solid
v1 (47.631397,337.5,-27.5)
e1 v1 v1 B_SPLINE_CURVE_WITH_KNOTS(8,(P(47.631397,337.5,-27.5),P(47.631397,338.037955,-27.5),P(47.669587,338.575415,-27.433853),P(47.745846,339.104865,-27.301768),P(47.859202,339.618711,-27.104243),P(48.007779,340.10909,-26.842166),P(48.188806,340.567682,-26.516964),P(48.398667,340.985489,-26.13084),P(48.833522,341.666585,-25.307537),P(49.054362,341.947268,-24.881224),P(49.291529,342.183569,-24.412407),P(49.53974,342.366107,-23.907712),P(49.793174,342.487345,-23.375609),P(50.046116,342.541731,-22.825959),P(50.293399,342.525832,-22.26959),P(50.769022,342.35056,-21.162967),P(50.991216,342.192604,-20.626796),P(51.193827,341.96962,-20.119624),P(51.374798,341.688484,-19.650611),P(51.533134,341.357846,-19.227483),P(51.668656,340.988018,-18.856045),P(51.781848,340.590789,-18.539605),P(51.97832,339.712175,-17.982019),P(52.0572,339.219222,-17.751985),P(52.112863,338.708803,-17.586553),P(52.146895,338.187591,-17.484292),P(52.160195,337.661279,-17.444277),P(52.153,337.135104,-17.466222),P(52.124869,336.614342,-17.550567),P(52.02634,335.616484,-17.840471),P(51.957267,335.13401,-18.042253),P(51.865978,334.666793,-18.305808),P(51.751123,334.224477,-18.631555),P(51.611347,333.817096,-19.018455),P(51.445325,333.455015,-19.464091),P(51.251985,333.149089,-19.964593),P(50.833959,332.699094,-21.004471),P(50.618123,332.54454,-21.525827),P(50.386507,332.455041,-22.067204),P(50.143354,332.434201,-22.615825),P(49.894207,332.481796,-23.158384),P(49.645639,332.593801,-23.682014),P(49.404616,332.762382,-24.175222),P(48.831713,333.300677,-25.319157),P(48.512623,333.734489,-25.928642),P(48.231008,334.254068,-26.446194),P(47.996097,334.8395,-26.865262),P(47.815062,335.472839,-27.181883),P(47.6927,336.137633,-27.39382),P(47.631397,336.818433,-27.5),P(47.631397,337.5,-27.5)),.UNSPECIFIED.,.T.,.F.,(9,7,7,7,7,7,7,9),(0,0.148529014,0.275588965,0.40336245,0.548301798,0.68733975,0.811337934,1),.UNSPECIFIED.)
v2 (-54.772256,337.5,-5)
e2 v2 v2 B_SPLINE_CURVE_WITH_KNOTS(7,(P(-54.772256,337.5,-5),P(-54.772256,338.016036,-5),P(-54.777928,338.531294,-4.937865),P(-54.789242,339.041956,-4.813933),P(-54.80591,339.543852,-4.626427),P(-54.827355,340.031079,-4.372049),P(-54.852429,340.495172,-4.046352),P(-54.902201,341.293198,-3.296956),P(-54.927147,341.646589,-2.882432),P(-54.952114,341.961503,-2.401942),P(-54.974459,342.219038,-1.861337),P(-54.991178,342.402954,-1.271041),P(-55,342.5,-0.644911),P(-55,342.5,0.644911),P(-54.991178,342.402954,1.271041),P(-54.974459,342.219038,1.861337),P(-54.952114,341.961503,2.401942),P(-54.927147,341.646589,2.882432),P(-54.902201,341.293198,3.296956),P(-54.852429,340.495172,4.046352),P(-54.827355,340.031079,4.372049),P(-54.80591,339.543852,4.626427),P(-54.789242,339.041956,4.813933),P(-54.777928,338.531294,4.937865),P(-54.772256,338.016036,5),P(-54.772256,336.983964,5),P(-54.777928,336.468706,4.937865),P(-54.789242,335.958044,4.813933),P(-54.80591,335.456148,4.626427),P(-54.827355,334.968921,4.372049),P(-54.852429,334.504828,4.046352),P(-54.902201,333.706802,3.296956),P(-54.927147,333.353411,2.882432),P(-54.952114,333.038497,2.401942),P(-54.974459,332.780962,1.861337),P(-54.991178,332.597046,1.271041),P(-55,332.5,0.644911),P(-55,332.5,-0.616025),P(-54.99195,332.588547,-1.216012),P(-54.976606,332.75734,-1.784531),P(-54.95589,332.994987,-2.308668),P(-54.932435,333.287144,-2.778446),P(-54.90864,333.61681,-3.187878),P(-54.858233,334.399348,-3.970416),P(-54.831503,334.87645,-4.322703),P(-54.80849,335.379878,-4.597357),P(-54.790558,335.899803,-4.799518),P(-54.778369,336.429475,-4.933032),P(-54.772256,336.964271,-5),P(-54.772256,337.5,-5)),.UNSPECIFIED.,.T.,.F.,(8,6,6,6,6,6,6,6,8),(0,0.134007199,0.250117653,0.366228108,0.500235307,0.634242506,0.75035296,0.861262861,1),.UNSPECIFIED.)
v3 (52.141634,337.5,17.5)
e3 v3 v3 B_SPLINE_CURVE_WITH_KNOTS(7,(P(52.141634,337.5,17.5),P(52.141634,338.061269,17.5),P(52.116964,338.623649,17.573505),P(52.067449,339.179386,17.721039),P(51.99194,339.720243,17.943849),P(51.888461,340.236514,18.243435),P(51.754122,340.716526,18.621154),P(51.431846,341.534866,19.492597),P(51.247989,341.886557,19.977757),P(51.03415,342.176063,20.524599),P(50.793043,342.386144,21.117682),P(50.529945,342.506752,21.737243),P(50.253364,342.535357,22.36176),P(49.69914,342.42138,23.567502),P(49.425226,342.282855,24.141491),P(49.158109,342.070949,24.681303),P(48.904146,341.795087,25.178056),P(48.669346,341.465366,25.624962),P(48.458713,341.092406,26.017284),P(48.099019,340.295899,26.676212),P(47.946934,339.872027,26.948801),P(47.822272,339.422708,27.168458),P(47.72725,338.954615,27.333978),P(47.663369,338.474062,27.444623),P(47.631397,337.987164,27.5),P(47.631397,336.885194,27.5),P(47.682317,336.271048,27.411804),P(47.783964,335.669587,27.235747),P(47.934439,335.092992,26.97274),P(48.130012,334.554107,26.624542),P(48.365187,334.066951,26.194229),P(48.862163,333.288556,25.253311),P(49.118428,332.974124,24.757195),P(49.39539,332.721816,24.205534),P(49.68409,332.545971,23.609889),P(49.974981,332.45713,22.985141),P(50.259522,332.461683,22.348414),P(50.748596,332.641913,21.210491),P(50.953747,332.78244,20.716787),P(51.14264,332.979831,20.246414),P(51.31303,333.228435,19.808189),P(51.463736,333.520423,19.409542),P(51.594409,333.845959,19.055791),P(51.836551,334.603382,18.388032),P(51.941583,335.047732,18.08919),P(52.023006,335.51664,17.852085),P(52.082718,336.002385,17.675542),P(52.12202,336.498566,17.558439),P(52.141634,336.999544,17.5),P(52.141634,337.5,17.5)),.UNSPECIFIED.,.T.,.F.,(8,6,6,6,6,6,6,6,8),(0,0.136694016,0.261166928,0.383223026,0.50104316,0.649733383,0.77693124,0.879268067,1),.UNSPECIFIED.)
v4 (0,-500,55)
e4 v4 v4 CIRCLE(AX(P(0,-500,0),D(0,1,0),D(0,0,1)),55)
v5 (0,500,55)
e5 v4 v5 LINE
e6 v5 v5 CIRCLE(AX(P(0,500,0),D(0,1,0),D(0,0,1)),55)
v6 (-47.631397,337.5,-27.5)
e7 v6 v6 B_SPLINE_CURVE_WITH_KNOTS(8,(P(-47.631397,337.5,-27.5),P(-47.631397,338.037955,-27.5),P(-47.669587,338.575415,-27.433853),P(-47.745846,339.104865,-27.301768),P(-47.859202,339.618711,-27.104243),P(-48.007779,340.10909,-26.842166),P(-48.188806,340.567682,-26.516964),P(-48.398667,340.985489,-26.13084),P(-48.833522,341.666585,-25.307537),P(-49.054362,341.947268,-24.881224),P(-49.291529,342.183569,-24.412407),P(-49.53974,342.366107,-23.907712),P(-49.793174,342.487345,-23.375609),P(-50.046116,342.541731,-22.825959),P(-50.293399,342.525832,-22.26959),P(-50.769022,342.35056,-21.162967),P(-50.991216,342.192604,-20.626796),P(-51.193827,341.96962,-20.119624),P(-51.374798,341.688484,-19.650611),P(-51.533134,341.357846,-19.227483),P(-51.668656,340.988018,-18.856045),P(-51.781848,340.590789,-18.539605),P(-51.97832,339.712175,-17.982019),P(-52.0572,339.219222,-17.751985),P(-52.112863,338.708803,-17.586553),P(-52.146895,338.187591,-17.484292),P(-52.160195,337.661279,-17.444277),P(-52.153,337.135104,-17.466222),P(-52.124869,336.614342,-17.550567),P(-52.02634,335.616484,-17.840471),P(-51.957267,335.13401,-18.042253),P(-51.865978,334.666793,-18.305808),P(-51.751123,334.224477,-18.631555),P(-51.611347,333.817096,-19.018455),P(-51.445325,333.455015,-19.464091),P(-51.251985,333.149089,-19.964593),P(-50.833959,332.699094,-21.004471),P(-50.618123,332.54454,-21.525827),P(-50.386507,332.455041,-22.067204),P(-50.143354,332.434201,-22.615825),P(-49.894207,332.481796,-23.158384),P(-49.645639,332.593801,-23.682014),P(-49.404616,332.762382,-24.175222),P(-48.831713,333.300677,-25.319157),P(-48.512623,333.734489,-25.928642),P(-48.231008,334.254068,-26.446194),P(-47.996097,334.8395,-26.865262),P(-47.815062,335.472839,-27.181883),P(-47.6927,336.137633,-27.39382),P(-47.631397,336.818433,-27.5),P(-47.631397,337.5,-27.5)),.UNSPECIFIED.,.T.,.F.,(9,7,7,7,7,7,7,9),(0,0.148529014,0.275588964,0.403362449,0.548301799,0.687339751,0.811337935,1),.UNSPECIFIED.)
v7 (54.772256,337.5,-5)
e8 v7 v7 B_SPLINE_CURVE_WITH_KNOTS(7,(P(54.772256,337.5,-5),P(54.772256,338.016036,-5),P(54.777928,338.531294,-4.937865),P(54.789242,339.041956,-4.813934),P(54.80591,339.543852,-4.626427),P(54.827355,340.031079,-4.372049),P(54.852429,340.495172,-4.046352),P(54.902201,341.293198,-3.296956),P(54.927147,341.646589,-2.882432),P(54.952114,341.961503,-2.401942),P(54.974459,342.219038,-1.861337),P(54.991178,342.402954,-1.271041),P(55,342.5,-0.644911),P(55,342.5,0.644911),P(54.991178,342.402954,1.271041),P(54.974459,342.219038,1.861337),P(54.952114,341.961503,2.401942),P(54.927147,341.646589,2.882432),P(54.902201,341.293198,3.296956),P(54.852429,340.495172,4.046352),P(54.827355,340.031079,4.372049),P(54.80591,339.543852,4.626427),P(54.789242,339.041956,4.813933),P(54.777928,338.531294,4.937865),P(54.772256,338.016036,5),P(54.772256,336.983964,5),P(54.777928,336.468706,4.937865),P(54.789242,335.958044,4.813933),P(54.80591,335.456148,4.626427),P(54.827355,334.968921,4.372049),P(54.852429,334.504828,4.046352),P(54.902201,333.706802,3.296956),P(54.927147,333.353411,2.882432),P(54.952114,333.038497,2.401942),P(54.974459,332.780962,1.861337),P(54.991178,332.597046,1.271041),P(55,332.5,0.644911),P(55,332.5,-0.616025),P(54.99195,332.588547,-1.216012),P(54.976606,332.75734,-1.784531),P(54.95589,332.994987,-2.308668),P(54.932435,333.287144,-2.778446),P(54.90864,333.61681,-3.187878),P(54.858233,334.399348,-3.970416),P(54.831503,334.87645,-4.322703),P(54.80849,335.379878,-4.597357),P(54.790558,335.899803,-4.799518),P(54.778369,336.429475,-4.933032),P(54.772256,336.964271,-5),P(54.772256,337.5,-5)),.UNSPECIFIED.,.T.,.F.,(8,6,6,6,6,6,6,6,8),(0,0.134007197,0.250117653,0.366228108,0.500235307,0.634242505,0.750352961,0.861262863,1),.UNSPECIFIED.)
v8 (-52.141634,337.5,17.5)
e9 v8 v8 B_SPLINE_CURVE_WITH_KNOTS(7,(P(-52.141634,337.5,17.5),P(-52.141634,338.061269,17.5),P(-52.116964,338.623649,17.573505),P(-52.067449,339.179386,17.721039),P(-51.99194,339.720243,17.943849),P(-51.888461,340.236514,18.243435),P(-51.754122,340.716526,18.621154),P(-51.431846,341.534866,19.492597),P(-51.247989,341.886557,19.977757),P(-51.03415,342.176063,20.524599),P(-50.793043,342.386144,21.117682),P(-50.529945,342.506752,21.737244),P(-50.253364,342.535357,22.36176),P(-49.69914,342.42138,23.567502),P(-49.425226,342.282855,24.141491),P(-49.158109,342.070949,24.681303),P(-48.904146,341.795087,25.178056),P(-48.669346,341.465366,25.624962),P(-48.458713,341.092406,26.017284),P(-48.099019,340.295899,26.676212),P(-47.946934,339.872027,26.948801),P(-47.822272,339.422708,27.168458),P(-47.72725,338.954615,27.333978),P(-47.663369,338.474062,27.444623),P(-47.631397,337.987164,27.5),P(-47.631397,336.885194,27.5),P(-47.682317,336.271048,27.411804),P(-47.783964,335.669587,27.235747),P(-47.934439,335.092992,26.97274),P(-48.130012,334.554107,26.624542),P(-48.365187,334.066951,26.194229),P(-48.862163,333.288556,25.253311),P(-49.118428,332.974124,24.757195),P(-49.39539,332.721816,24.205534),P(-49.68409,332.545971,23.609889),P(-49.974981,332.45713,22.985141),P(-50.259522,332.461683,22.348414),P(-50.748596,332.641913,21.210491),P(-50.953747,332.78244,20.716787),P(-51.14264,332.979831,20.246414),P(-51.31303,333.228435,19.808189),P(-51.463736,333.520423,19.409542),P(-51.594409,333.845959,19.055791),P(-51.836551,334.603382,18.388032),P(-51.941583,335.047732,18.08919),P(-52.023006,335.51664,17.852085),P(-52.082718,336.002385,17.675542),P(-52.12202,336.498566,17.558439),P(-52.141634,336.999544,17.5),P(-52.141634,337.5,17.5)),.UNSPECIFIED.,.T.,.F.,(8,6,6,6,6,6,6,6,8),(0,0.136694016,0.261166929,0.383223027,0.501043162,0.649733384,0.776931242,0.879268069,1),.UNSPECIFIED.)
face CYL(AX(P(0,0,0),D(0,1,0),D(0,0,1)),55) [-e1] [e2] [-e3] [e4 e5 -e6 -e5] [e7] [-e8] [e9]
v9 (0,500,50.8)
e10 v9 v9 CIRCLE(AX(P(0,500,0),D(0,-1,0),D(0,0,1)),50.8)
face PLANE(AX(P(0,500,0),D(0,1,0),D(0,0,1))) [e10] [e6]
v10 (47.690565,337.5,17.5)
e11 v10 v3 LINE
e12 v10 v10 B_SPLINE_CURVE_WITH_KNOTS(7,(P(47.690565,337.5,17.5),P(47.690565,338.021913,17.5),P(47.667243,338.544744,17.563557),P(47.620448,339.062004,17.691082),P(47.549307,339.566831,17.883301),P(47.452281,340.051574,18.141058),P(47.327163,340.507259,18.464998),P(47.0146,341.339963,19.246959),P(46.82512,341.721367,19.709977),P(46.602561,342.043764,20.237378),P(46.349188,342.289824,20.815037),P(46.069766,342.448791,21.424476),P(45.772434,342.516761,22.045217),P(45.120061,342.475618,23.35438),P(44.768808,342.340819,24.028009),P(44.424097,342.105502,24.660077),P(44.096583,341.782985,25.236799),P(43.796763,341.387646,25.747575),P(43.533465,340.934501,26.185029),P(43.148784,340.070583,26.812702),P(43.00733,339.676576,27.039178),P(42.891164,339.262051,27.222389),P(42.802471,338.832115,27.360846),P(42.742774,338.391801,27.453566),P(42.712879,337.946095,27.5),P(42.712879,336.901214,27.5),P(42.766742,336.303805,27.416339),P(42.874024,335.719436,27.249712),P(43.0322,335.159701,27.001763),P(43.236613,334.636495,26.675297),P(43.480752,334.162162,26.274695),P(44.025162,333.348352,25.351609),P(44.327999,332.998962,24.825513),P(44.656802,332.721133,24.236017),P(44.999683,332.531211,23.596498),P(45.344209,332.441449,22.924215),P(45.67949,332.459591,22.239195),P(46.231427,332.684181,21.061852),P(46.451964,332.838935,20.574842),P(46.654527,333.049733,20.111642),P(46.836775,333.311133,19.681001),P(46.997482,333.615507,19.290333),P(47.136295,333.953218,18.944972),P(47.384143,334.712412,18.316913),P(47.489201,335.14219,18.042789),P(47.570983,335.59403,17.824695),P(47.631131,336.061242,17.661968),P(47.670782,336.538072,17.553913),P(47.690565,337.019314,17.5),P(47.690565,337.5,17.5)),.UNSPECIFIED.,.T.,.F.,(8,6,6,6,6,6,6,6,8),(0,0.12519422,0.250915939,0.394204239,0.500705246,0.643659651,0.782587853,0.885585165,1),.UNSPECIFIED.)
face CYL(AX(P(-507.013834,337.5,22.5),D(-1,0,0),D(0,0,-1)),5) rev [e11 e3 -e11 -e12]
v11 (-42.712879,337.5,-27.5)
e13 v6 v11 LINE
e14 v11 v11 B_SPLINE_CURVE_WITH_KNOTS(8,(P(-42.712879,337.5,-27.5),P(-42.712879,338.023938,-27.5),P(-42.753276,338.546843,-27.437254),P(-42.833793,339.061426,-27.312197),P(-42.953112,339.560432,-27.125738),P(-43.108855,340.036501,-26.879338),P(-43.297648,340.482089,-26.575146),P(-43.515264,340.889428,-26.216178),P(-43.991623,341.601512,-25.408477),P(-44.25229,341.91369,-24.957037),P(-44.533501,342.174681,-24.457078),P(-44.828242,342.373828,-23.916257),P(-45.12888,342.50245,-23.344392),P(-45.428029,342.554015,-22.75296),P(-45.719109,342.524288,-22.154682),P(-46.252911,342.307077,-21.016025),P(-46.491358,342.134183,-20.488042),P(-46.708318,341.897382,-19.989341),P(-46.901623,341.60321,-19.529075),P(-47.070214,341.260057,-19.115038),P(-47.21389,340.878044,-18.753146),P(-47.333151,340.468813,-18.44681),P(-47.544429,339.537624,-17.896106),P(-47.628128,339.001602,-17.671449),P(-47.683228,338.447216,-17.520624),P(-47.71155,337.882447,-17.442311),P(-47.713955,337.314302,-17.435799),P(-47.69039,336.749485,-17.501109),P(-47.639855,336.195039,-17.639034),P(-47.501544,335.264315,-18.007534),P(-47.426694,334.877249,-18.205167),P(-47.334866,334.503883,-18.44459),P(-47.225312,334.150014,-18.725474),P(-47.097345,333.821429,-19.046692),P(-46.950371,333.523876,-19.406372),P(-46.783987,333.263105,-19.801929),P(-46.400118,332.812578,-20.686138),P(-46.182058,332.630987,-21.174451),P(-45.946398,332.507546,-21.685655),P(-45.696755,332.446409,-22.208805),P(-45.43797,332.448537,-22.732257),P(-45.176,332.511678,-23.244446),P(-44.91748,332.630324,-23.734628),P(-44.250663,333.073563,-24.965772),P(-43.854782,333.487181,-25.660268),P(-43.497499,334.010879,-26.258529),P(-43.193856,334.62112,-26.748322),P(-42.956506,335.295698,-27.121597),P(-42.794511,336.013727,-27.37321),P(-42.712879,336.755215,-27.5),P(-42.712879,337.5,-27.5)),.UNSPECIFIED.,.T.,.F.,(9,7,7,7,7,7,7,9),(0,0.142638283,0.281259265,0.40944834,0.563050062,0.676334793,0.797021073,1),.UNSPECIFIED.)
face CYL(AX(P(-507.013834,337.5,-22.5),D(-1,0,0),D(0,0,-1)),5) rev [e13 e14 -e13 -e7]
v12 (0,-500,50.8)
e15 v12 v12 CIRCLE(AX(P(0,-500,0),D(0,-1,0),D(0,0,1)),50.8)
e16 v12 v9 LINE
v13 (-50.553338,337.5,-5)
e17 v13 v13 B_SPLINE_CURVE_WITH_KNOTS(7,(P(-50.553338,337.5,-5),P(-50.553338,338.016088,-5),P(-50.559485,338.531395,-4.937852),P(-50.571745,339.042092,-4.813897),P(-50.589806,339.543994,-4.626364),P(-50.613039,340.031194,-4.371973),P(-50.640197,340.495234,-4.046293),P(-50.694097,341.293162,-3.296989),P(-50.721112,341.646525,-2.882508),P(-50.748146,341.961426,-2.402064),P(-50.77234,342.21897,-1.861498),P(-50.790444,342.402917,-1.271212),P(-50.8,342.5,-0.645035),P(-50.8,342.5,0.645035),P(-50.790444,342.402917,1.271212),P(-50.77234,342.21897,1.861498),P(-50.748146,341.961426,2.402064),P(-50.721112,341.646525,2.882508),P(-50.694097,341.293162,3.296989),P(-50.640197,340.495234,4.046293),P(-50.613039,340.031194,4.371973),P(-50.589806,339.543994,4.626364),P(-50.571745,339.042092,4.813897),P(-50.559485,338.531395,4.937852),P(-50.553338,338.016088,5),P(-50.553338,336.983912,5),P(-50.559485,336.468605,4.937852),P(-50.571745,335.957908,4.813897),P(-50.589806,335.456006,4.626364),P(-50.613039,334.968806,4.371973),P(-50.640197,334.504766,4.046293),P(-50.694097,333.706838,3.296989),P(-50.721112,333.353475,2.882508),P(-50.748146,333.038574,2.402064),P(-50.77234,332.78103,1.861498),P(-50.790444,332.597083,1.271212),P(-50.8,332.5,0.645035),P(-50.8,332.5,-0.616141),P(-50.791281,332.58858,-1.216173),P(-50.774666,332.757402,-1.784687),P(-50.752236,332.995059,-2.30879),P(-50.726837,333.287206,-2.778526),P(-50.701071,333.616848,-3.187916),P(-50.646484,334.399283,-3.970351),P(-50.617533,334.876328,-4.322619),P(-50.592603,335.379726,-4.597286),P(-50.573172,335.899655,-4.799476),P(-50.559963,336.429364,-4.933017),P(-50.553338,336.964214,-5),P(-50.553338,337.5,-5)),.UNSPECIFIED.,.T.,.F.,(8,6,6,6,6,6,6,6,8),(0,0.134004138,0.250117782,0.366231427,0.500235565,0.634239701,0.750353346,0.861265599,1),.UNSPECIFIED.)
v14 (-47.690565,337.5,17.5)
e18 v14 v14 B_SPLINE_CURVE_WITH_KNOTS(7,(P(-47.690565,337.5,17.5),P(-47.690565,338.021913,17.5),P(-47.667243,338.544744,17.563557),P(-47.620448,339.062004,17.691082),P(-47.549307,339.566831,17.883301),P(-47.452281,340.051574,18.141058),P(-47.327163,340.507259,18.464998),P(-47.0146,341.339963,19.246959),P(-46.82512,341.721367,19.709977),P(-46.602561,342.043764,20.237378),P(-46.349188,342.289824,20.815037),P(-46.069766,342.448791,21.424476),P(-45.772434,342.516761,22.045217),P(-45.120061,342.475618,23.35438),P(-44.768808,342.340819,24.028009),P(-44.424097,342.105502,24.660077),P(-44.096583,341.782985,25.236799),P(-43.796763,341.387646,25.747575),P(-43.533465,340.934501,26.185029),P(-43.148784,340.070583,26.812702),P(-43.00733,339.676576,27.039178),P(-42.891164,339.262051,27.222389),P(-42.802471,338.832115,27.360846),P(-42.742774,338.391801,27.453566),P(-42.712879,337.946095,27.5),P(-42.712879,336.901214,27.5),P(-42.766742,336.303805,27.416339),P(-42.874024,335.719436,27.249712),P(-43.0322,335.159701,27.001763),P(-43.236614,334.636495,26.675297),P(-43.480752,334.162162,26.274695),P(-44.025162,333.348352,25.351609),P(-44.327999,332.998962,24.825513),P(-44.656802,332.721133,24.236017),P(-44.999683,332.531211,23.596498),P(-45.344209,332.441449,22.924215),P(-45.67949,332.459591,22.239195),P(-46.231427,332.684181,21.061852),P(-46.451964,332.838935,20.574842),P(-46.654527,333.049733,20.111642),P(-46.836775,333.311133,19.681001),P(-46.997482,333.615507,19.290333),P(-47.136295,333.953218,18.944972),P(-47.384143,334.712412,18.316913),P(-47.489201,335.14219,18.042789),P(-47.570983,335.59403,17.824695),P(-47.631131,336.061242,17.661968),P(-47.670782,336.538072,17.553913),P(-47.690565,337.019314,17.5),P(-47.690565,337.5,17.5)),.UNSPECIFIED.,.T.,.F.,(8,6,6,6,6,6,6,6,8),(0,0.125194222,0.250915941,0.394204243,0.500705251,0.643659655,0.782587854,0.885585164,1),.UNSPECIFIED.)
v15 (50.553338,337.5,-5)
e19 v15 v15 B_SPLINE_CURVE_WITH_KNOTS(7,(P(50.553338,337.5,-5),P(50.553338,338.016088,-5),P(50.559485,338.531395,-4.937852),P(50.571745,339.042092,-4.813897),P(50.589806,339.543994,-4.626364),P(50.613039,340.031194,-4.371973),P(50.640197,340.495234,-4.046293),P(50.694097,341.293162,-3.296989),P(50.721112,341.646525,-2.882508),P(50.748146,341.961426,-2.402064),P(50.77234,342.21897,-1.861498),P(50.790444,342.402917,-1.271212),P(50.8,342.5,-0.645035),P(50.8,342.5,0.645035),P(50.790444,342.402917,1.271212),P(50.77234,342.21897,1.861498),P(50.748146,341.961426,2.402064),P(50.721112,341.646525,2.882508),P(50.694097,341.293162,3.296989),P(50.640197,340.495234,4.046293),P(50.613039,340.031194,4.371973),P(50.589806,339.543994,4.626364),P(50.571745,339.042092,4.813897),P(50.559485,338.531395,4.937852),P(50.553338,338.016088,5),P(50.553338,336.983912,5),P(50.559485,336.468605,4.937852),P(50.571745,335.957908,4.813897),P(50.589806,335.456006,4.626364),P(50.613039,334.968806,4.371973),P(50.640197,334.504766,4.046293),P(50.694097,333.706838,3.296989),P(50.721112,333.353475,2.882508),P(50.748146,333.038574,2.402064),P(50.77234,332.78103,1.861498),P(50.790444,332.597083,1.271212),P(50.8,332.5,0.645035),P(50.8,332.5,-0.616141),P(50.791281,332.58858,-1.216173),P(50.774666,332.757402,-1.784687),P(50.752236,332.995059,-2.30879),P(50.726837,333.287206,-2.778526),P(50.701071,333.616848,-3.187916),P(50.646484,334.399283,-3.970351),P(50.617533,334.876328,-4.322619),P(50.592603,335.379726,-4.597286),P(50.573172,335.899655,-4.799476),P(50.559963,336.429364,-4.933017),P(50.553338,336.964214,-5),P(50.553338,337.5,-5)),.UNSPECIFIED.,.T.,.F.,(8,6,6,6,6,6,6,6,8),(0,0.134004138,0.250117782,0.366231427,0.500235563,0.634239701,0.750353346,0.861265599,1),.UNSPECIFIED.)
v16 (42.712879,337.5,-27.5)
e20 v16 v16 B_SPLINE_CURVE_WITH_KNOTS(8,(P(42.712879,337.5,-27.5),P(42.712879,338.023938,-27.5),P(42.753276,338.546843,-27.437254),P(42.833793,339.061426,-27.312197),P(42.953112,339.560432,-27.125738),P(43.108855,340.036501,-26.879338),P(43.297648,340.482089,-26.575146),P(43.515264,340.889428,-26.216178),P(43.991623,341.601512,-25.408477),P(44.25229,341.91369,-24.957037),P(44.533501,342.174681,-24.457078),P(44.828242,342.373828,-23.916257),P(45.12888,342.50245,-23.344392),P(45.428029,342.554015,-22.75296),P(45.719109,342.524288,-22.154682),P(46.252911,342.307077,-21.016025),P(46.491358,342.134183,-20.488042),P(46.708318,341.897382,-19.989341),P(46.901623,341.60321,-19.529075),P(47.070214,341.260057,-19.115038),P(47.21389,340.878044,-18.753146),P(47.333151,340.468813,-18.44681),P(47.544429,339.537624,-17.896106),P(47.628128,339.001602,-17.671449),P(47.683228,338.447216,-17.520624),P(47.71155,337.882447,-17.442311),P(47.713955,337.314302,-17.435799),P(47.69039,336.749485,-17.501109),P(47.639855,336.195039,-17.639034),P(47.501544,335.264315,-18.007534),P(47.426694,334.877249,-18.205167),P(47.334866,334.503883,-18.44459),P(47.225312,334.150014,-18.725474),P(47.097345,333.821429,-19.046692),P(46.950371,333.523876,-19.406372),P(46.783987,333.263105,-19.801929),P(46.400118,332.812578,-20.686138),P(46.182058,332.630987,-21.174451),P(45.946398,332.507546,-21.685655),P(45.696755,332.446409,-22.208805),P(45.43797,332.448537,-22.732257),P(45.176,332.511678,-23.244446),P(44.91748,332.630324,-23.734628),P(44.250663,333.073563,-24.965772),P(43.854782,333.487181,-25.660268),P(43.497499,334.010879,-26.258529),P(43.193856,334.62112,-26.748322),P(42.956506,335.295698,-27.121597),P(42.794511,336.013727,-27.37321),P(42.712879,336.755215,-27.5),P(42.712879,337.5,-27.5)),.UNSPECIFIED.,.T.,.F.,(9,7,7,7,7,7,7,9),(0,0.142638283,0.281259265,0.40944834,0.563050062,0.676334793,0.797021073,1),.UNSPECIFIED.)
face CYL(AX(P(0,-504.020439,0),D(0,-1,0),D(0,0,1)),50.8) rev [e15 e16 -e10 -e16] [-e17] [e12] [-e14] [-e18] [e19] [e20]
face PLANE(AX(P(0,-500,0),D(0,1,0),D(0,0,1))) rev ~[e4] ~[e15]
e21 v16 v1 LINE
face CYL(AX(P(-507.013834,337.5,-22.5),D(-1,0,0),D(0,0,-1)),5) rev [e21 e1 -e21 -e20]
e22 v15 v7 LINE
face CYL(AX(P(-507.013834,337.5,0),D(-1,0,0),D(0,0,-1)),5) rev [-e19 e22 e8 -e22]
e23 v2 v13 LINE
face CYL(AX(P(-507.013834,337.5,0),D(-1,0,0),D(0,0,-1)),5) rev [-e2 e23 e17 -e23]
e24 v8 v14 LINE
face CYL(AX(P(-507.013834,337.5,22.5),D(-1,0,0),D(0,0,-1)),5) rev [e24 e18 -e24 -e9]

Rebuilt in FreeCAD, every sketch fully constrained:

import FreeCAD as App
import Part
import Sketcher
Q = App.Units.Quantity

doc = App.newDocument("Part")
body = doc.addObject("PartDesign::Body", "Body")

sketch1 = body.newObject("Sketcher::SketchObject", "Sketch")
sketch1.AttachmentSupport = (doc.getObject("XZ_Plane"), [""])
sketch1.MapMode = "FlatFace"
sketch1.addGeometry([
    Part.Circle(App.Vector(0, 0, 0), App.Vector(0, 0, 1), 55),
    Part.Circle(App.Vector(0, 0, 0), App.Vector(0, 0, 1), 49),
], False)
sketch1.addConstraint([
    Sketcher.Constraint("Coincident", 0, 3, -1, 1),
    Sketcher.Constraint("Coincident", 1, 3, -1, 1),
    Sketcher.Constraint("Diameter", 0, Q("110 mm")),
    Sketcher.Constraint("Diameter", 1, Q("97.2 mm")),
])
pad1 = body.newObject("PartDesign::Pad", "Pad")
pad1.Profile = sketch1
pad1.Length = 1000
pad1.Midplane = True

sketch2 = body.newObject("Sketcher::SketchObject", "Sketch001")
sketch2.AttachmentSupport = (doc.getObject("YZ_Plane"), [""])
sketch2.MapMode = "FlatFace"
sketch2.addGeometry([
    Part.Circle(App.Vector(338, 0, 0), App.Vector(0, 0, 1), 5),
    Part.Circle(App.Vector(338, -22, 0), App.Vector(0, 0, 1), 5),
    Part.Circle(App.Vector(338, 22, 0), App.Vector(0, 0, 1), 5),
], False)
sketch2.addConstraint([
    Sketcher.Constraint("Equal", 0, 1),
    Sketcher.Constraint("Equal", 1, 2),
    Sketcher.Constraint("Symmetric", 1, 3, 2, 3, -1),
    Sketcher.Constraint("PointOnObject", 0, 3, -1),
    Sketcher.Constraint("Vertical", 0, 3, 1, 3),
    Sketcher.Constraint("Diameter", 0, Q("10 mm")),
    Sketcher.Constraint("DistanceY", 1, 3, 2, 3, Q("45 mm")),
    Sketcher.Constraint("DistanceX", -1, 1, 0, 3, Q("337.5 mm")),
])
pocket1 = body.newObject("PartDesign::Pocket", "Pocket")
pocket1.Profile = sketch2
pocket1.Type = "ThroughAll"
pocket1.Midplane = True

sketch3 = body.newObject("Sketcher::SketchObject", "Sketch002")
sketch3.AttachmentSupport = (doc.getObject("XZ_Plane"), [""])
sketch3.MapMode = "FlatFace"
sketch3.AttachmentOffset = App.Placement(App.Vector(0, 0, -500), App.Rotation())
sketch3.addGeometry(Part.Circle(App.Vector(0, 0, 0), App.Vector(0, 0, 1), 51), False)
sketch3.addConstraint([
    Sketcher.Constraint("Coincident", 0, 3, -1, 1),
    Sketcher.Constraint("Diameter", 0, Q("101.6 mm")),
])
pocket2 = body.newObject("PartDesign::Pocket", "Pocket001")
pocket2.Profile = sketch3
pocket2.Type = "ThroughAll"
pocket2.Midplane = True

doc.recompute()
